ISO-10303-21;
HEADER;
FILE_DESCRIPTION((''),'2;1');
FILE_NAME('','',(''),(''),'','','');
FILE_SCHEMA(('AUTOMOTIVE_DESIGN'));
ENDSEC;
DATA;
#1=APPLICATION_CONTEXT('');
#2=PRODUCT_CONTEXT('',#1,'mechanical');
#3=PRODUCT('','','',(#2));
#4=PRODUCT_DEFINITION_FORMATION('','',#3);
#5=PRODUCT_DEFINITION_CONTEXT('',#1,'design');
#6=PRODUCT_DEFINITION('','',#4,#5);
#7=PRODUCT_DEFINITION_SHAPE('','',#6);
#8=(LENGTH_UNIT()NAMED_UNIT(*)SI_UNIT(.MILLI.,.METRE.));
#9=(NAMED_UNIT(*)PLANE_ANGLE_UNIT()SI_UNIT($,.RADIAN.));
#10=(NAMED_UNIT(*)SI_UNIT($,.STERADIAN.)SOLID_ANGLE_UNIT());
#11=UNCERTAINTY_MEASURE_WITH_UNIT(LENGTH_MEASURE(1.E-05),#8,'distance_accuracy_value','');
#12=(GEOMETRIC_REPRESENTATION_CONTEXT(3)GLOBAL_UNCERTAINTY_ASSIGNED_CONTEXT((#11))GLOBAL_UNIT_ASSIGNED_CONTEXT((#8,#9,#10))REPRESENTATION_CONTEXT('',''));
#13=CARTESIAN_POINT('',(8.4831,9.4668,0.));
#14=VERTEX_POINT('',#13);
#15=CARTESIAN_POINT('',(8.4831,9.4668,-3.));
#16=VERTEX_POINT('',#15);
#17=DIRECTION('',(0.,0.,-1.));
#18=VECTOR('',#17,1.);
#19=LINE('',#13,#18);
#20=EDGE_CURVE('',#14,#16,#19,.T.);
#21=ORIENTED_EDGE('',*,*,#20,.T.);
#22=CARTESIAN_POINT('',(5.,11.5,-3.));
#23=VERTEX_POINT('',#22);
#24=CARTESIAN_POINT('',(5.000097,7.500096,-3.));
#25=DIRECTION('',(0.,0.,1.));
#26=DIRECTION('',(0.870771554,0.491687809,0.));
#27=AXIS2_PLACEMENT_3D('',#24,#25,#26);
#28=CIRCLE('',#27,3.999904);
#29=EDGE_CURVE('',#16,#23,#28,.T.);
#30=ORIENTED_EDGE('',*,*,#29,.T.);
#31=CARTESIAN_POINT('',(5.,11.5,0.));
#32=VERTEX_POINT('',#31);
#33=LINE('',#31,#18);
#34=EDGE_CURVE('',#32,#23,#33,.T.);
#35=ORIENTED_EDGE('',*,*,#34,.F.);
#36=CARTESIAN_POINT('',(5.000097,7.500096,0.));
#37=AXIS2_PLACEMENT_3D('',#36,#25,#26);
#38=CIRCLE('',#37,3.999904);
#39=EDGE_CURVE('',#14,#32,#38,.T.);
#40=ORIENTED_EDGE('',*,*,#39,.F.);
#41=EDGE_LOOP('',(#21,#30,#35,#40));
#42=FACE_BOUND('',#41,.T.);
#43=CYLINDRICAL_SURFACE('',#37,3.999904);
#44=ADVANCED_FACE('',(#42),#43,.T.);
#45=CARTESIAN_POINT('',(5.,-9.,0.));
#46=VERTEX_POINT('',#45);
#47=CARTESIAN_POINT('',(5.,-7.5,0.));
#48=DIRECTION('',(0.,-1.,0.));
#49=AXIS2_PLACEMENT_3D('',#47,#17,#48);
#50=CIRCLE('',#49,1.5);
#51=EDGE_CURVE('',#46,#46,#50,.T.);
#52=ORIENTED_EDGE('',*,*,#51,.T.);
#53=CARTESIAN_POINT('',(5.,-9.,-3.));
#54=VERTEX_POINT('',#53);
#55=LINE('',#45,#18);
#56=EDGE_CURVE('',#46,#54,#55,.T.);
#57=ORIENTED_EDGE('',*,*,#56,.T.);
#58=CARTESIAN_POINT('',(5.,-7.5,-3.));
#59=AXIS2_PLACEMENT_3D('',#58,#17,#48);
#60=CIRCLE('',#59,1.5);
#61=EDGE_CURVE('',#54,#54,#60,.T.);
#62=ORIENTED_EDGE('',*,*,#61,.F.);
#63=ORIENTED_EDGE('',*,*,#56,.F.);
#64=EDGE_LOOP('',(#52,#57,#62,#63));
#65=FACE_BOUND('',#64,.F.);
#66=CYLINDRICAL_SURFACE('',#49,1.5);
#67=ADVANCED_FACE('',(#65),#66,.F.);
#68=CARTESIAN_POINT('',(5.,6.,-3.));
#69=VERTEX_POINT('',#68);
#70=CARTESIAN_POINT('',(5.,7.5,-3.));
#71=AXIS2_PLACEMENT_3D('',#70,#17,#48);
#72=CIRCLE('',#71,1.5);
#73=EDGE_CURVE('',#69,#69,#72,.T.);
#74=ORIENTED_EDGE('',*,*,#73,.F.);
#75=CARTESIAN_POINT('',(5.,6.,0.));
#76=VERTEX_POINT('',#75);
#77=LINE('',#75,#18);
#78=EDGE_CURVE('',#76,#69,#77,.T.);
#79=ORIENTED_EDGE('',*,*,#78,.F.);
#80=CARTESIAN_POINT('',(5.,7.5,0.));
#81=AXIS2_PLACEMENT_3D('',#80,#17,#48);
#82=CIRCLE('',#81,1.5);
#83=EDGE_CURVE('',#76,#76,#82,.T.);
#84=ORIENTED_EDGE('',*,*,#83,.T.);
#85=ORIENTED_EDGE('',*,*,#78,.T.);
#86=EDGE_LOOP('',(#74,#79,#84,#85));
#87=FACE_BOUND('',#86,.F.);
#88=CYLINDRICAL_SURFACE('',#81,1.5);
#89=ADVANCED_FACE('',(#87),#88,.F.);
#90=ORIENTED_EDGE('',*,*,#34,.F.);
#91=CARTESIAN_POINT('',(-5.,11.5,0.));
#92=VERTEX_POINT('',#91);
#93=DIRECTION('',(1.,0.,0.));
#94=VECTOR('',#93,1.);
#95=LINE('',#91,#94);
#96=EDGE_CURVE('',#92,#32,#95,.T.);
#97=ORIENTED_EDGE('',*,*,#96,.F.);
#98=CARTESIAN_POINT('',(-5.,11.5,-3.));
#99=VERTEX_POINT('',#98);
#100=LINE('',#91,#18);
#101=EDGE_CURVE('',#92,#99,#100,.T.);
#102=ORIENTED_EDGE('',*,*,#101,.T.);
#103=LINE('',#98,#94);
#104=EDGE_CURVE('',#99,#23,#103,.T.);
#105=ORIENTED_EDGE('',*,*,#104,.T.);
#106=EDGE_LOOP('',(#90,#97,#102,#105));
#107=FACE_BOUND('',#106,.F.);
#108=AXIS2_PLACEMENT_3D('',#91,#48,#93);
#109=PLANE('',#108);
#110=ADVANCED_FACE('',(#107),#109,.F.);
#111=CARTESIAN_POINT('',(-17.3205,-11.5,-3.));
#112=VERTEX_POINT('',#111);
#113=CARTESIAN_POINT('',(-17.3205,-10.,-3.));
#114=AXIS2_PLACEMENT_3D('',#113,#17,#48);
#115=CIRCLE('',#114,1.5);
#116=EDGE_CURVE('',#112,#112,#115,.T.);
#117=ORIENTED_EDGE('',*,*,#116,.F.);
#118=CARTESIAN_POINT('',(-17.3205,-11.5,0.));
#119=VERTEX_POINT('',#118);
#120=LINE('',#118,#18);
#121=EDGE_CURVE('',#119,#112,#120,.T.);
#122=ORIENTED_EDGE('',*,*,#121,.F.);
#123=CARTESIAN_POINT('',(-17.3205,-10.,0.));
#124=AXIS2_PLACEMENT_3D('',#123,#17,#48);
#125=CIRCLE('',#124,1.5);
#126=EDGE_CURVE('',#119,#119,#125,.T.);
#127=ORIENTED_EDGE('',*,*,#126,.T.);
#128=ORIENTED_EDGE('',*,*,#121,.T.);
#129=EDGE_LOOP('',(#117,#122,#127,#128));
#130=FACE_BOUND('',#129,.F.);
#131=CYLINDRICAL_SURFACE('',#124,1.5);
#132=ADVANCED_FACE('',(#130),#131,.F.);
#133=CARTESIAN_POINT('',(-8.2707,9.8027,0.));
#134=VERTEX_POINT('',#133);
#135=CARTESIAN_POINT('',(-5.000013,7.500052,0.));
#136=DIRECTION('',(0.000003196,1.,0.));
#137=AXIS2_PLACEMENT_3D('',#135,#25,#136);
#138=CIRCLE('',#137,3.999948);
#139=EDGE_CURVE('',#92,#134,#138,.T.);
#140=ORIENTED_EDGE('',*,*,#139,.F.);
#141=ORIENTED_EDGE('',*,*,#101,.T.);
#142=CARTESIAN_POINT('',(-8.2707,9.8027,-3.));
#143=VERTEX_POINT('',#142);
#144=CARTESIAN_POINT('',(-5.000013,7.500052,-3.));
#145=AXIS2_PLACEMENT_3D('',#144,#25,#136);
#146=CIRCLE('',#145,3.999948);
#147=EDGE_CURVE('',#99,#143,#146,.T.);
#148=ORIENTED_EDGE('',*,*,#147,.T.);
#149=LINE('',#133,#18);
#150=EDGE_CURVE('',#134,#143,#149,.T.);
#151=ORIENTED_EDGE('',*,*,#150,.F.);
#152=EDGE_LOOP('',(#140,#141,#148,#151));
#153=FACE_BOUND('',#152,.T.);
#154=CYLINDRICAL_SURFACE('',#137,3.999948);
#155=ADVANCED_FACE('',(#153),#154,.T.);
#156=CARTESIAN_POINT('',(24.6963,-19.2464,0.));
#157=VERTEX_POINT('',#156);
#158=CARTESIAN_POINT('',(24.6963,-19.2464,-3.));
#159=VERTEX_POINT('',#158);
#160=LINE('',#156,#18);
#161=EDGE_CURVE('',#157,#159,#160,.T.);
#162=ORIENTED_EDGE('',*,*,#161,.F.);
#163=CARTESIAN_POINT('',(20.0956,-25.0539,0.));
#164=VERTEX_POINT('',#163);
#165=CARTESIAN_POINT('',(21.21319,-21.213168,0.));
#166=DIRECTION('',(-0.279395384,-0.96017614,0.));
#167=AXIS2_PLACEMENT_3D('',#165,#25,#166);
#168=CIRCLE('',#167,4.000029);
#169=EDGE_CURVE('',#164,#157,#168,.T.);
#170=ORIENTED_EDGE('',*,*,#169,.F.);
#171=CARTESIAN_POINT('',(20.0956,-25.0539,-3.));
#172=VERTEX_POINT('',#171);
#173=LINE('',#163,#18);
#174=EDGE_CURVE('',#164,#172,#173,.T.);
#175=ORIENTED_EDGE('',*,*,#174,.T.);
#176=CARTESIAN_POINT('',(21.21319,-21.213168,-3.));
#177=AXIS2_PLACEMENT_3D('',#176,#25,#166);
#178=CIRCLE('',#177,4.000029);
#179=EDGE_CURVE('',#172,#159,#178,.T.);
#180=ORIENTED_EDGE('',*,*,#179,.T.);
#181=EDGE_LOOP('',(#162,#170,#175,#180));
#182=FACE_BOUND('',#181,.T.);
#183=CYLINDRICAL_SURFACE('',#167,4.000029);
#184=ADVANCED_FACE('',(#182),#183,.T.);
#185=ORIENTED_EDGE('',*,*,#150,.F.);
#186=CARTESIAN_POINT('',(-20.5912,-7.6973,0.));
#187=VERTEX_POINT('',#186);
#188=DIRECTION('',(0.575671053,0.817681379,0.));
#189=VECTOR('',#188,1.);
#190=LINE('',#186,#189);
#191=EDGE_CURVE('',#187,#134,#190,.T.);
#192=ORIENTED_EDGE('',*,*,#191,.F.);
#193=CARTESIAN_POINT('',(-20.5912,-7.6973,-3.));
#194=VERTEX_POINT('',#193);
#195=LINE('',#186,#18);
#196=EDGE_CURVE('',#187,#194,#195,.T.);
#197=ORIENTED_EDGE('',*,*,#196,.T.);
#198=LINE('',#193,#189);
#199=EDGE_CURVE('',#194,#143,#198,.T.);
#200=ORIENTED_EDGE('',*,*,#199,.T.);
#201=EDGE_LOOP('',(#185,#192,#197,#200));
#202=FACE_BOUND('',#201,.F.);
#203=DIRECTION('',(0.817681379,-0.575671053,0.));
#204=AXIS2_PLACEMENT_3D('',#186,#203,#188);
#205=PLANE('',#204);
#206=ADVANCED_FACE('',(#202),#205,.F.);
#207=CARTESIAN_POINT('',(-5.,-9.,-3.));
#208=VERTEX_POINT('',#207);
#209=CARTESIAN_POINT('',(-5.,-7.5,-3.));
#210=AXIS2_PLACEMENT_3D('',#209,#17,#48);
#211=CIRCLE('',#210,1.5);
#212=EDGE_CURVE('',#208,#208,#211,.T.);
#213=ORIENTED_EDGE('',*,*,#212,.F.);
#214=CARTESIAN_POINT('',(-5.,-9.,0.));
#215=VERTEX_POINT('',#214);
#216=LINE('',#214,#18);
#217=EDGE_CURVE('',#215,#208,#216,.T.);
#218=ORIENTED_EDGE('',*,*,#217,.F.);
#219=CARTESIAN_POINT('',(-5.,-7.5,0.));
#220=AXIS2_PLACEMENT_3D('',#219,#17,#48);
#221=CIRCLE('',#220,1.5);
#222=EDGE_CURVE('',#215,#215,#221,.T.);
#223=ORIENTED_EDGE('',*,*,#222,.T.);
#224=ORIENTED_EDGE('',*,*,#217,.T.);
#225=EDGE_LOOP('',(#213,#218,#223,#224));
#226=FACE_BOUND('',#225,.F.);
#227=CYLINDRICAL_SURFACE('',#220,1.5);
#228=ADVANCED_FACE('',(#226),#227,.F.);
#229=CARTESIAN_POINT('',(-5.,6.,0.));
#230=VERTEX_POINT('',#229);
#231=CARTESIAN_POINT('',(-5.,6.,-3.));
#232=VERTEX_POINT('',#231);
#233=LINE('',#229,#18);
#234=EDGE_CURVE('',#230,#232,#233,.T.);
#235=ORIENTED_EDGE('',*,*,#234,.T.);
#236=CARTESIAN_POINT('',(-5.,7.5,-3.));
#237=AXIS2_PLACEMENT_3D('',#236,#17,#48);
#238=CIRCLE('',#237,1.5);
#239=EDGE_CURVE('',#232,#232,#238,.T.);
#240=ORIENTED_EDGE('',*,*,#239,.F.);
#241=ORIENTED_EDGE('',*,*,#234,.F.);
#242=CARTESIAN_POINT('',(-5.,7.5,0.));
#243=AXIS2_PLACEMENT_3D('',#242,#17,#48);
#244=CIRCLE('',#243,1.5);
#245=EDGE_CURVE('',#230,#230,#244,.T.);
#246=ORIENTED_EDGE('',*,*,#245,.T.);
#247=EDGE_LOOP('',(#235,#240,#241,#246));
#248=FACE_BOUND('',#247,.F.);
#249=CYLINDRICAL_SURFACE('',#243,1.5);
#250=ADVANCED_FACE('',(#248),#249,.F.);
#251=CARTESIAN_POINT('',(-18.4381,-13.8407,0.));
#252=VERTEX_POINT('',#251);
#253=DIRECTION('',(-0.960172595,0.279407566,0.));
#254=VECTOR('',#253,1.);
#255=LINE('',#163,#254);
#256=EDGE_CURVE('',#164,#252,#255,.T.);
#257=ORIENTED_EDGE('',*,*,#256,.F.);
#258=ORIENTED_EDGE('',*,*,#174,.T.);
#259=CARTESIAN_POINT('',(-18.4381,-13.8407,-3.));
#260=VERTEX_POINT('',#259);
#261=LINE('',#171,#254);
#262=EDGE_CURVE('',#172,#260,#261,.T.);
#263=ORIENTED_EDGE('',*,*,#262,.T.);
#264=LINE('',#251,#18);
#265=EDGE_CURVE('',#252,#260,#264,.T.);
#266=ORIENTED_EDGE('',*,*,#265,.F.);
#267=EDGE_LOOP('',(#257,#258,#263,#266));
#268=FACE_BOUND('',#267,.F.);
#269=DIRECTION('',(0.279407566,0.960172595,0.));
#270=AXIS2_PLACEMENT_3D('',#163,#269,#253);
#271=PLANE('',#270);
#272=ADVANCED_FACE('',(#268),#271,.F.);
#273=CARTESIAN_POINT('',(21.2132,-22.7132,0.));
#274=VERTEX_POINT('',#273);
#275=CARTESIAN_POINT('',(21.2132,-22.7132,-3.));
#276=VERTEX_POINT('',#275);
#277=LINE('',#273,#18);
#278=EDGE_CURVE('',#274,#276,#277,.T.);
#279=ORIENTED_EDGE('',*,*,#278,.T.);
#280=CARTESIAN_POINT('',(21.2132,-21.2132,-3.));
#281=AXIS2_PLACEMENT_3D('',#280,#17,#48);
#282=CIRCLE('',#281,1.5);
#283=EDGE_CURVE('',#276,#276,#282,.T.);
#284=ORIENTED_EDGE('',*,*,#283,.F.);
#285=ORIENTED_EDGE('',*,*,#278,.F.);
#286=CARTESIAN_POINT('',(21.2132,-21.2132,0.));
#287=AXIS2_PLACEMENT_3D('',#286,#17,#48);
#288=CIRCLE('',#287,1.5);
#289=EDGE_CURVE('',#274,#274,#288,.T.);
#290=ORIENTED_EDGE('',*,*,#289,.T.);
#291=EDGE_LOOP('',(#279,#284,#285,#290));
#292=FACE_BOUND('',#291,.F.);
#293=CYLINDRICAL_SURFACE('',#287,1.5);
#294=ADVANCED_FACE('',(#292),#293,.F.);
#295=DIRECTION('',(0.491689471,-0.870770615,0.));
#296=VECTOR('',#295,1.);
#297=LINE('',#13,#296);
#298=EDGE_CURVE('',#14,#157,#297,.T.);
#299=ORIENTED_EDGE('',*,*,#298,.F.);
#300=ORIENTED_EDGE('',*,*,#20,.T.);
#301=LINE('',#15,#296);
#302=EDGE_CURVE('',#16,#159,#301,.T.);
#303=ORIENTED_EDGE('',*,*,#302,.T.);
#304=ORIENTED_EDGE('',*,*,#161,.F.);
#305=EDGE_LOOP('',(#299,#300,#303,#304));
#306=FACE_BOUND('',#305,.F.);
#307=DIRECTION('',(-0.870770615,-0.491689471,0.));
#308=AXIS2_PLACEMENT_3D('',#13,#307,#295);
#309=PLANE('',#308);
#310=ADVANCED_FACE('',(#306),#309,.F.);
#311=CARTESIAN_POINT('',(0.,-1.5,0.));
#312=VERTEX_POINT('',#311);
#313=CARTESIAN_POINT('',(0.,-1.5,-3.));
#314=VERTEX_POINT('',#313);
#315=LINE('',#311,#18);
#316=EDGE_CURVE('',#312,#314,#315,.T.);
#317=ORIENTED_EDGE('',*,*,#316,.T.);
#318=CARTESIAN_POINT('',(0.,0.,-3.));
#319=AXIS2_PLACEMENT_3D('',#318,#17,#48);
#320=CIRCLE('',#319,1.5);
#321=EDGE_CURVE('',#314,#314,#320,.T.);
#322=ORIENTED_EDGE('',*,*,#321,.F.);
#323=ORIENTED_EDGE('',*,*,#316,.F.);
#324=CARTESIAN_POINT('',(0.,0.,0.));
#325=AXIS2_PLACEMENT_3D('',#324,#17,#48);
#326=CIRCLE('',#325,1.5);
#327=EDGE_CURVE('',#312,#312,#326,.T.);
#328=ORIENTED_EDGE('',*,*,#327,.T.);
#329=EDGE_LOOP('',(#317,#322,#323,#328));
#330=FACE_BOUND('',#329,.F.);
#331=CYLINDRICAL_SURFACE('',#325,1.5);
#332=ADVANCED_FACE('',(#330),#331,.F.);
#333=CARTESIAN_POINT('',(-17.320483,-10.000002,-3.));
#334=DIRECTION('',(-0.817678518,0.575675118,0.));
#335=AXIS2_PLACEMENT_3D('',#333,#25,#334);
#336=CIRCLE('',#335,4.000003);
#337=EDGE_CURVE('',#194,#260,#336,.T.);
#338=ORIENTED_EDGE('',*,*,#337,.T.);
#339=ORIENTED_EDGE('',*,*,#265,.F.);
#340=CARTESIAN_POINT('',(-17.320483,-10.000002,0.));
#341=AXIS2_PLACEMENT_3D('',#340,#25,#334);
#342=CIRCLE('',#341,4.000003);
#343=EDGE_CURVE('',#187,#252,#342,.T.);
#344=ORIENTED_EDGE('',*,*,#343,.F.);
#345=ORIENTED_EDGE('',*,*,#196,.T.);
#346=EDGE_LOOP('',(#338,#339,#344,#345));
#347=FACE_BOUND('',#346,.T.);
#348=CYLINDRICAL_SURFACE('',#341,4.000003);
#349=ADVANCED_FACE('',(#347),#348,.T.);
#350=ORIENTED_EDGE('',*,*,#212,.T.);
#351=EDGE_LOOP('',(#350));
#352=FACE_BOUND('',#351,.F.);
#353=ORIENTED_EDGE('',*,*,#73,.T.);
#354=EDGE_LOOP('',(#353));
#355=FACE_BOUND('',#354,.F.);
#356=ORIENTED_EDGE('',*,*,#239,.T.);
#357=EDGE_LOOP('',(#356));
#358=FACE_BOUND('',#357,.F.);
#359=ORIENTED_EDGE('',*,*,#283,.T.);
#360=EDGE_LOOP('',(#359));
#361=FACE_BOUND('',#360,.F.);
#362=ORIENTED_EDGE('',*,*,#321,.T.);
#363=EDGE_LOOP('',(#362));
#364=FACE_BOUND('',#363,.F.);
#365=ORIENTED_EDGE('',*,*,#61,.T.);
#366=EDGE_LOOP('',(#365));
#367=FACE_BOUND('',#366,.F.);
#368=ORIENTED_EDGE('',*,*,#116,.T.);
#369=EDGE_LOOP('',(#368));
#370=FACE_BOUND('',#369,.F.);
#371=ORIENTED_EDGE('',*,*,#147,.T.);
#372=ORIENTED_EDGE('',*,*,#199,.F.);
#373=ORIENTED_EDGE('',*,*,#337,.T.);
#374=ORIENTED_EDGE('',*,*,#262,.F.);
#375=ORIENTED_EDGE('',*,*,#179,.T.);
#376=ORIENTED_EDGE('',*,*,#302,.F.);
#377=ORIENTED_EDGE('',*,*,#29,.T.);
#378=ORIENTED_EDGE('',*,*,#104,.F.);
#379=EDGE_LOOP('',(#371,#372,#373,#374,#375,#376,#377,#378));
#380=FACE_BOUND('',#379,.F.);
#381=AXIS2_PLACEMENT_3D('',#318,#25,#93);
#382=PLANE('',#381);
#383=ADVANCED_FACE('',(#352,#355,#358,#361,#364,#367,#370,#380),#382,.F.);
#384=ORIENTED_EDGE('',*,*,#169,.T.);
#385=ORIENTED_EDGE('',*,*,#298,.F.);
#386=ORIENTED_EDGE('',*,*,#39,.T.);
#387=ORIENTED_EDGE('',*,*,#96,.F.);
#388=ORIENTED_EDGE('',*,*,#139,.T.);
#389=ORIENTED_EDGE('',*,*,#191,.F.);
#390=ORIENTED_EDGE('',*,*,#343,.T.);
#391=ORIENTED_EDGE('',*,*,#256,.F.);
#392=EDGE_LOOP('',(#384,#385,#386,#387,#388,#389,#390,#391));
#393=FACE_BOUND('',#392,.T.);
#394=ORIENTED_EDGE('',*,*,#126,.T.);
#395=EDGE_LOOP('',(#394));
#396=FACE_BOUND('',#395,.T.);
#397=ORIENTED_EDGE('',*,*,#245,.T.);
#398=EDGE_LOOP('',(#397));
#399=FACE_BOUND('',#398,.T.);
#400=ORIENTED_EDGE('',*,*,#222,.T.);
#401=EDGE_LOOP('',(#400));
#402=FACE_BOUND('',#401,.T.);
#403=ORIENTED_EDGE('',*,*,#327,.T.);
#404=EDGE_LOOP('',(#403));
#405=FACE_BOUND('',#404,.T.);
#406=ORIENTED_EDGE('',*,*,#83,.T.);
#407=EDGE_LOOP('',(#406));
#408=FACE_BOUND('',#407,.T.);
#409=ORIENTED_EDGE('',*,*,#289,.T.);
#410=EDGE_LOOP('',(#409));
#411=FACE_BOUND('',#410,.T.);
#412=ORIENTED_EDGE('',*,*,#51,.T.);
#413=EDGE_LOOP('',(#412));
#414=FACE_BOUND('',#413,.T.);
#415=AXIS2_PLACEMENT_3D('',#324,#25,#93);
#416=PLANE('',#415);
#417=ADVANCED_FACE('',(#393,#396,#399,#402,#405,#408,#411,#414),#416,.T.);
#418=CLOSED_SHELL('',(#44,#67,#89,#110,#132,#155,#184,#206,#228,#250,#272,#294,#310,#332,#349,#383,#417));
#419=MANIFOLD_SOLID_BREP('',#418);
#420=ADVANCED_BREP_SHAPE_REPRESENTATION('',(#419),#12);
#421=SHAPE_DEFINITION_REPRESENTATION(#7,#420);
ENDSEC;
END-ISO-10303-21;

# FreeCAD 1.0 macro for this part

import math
import FreeCAD as App
import Part
import Sketcher

V = App.Vector
Q = App.Units.Quantity

doc = App.newDocument("Part")
params = doc.addObject("Spreadsheet::Sheet", "Params")
for row, (alias, value) in enumerate([
    ("sketch1_radius", "4 mm"),
    ("sketch1_width", "10 mm"),
    ("pad1_length", "3 mm"),
    ("sketch2_diameter", "3 mm"),
    ("hole_diameter", "3 mm"),
    ("hole_depth", "8 mm"),
    ("sketch3_diameter", "3 mm"),
    ("hole2_diameter", "3 mm"),
    ("hole2_depth", "8 mm"),
    ("sketch4_diameter", "3 mm"),
    ("hole3_diameter", "3 mm"),
    ("hole3_depth", "8 mm"),
], start=1):
    params.set(f"A{row}", alias)
    params.set(f"B{row}", "=" + value)
    params.setAlias(f"B{row}", alias)

body = doc.addObject("PartDesign::Body", "Body")

sketch1 = body.newObject("Sketcher::SketchObject", "Sketch")
sketch1.AttachmentSupport = (doc.getObject("XY_Plane"), [""])
sketch1.MapMode = "FlatFace"
sketch1.addGeometry([
    Part.LineSegment(V(-8.2707, 9.8027, 0), V(-20.5912, -7.6973, 0)),
    Part.ArcOfCircle(Part.Circle(V(-17.3205, -10, 0), V(0, 0, 1), 3.999988), math.radians(144.852965), math.radians(253.775605)),
    Part.LineSegment(V(-18.4381, -13.8407, 0), V(20.0956, -25.0539, 0)),
    Part.ArcOfCircle(Part.Circle(V(21.2132, -21.2132, 0), V(0, 0, 1), 4.000001), math.radians(-106.224395), math.radians(29.452088)),
    Part.LineSegment(V(24.6963, -19.2464, 0), V(8.4831, 9.4668, 0)),
    Part.ArcOfCircle(Part.Circle(V(5, 7.5, 0), V(0, 0, 1), 4.000036), math.radians(29.452088), math.radians(90)),
    Part.LineSegment(V(5, 11.5, 0), V(-5, 11.5, 0)),
    Part.ArcOfCircle(Part.Circle(V(-5, 7.5, 0), V(0, 0, 1), 4), math.radians(90), math.radians(144.852965)),
], False)
sketch1.addConstraint([
    Sketcher.Constraint("Tangent", 0, 2, 1, 1),
    Sketcher.Constraint("Tangent", 1, 2, 2, 1),
    Sketcher.Constraint("Tangent", 2, 2, 3, 1),
    Sketcher.Constraint("Tangent", 3, 2, 4, 1),
    Sketcher.Constraint("Tangent", 4, 2, 5, 1),
    Sketcher.Constraint("Tangent", 5, 2, 6, 1),
    Sketcher.Constraint("Tangent", 6, 2, 7, 1),
    Sketcher.Constraint("Tangent", 7, 2, 0, 1),
    Sketcher.Constraint("Horizontal", 6),
    Sketcher.Constraint("Equal", 1, 3),
    Sketcher.Constraint("Equal", 3, 5),
    Sketcher.Constraint("Equal", 5, 7),
    Sketcher.Constraint("Radius", 1, Q("4 mm")),
    Sketcher.Constraint("DistanceX", 6, 2, 6, 1, Q("10 mm")),
    Sketcher.Constraint("DistanceY", 1, 3, -1, 1, Q("10 mm")),
    Sketcher.Constraint("DistanceX", -1, 1, 5, 3, Q("5 mm")),
    Sketcher.Constraint("DistanceY", -1, 1, 5, 3, Q("7.5 mm")),
    Sketcher.Constraint("DistanceX", 4, 2, 3, 3, Q("12.73 mm")),
    Sketcher.Constraint("DistanceY", 3, 3, 4, 2, Q("30.68 mm")),
    Sketcher.Constraint("Distance", 0, Q("21.402 mm")),
])
sketch1.setExpression("Constraints[12]", "Params.sketch1_radius")
sketch1.setExpression("Constraints[13]", "Params.sketch1_width")
pad1 = body.newObject("PartDesign::Pad", "Pad")
pad1.Profile = sketch1
pad1.setExpression("Length", "Params.pad1_length")
pad1.Reversed = True

sketch2 = body.newObject("Sketcher::SketchObject", "Sketch001")
sketch2.AttachmentSupport = (doc.getObject("XY_Plane"), [""])
sketch2.MapMode = "FlatFace"
sketch2.addGeometry([
    Part.Circle(V(-5, 7.5, 0), V(0, 0, 1), 1.5),
    Part.Circle(V(5, 7.5, 0), V(0, 0, 1), 1.5),
    Part.Circle(V(5, -7.5, 0), V(0, 0, 1), 1.5),
    Part.Circle(V(-5, -7.5, 0), V(0, 0, 1), 1.5),
], False)
sketch2.addConstraint([
    Sketcher.Constraint("Equal", 0, 1),
    Sketcher.Constraint("Equal", 1, 2),
    Sketcher.Constraint("Equal", 2, 3),
    Sketcher.Constraint("Symmetric", 0, 3, 2, 3, -1, 1),
    Sketcher.Constraint("Symmetric", 1, 3, 3, 3, -1, 1),
    Sketcher.Constraint("Symmetric", 0, 3, 1, 3, -2),
    Sketcher.Constraint("Diameter", 0, Q("3 mm")),
    Sketcher.Constraint("DistanceX", 0, 3, -1, 1, Q("5 mm")),
    Sketcher.Constraint("DistanceY", 2, 3, 1, 3, Q("15 mm")),
])
sketch2.setExpression("Constraints[6]", "Params.sketch2_diameter")
doc.recompute()
hole = body.newObject("PartDesign::Hole", "Hole")
hole.Profile = sketch2
hole.ThreadType = "None"
hole.setExpression("Diameter", "Params.hole_diameter")
hole.DepthType = "Dimension"
hole.setExpression("Depth", "Params.hole_depth")
hole.DrillPoint = "Angled"
hole.DrillPointAngle = 118

sketch3 = body.newObject("Sketcher::SketchObject", "Sketch002")
sketch3.AttachmentSupport = (doc.getObject("XY_Plane"), [""])
sketch3.MapMode = "FlatFace"
sketch3.addGeometry([
    Part.Circle(V(-17.3205, -10, 0), V(0, 0, 1), 1.5),
    Part.Circle(V(21.2132, -21.2132, 0), V(0, 0, 1), 1.5),
], False)
sketch3.addConstraint([
    Sketcher.Constraint("Equal", 0, 1),
    Sketcher.Constraint("Diameter", 0, Q("3 mm")),
    Sketcher.Constraint("DistanceY", 0, 3, -1, 1, Q("10 mm")),
    Sketcher.Constraint("DistanceX", 0, 3, -1, 1, Q("17.3205 mm")),
    Sketcher.Constraint("DistanceX", -1, 1, 1, 3, Q("21.2132 mm")),
    Sketcher.Constraint("DistanceY", 1, 3, -1, 1, Q("21.2132 mm")),
])
sketch3.setExpression("Constraints[1]", "Params.sketch3_diameter")
doc.recompute()
hole2 = body.newObject("PartDesign::Hole", "Hole001")
hole2.Profile = sketch3
hole2.ThreadType = "None"
hole2.setExpression("Diameter", "Params.hole2_diameter")
hole2.DepthType = "Dimension"
hole2.setExpression("Depth", "Params.hole2_depth")
hole2.DrillPoint = "Angled"
hole2.DrillPointAngle = 118

sketch4 = body.newObject("Sketcher::SketchObject", "Sketch003")
sketch4.AttachmentSupport = (doc.getObject("XY_Plane"), [""])
sketch4.MapMode = "FlatFace"
sketch4.addGeometry(Part.Circle(V(0, 0, 0), V(0, 0, 1), 1.5), False)
sketch4.addConstraint([
    Sketcher.Constraint("Coincident", 0, 3, -1, 1),
    Sketcher.Constraint("Diameter", 0, Q("3 mm")),
])
sketch4.setExpression("Constraints[1]", "Params.sketch4_diameter")
doc.recompute()
hole3 = body.newObject("PartDesign::Hole", "Hole002")
hole3.Profile = sketch4
hole3.ThreadType = "None"
hole3.setExpression("Diameter", "Params.hole3_diameter")
hole3.DepthType = "Dimension"
hole3.setExpression("Depth", "Params.hole3_depth")
hole3.DrillPoint = "Angled"
hole3.DrillPointAngle = 118

doc.recompute()
